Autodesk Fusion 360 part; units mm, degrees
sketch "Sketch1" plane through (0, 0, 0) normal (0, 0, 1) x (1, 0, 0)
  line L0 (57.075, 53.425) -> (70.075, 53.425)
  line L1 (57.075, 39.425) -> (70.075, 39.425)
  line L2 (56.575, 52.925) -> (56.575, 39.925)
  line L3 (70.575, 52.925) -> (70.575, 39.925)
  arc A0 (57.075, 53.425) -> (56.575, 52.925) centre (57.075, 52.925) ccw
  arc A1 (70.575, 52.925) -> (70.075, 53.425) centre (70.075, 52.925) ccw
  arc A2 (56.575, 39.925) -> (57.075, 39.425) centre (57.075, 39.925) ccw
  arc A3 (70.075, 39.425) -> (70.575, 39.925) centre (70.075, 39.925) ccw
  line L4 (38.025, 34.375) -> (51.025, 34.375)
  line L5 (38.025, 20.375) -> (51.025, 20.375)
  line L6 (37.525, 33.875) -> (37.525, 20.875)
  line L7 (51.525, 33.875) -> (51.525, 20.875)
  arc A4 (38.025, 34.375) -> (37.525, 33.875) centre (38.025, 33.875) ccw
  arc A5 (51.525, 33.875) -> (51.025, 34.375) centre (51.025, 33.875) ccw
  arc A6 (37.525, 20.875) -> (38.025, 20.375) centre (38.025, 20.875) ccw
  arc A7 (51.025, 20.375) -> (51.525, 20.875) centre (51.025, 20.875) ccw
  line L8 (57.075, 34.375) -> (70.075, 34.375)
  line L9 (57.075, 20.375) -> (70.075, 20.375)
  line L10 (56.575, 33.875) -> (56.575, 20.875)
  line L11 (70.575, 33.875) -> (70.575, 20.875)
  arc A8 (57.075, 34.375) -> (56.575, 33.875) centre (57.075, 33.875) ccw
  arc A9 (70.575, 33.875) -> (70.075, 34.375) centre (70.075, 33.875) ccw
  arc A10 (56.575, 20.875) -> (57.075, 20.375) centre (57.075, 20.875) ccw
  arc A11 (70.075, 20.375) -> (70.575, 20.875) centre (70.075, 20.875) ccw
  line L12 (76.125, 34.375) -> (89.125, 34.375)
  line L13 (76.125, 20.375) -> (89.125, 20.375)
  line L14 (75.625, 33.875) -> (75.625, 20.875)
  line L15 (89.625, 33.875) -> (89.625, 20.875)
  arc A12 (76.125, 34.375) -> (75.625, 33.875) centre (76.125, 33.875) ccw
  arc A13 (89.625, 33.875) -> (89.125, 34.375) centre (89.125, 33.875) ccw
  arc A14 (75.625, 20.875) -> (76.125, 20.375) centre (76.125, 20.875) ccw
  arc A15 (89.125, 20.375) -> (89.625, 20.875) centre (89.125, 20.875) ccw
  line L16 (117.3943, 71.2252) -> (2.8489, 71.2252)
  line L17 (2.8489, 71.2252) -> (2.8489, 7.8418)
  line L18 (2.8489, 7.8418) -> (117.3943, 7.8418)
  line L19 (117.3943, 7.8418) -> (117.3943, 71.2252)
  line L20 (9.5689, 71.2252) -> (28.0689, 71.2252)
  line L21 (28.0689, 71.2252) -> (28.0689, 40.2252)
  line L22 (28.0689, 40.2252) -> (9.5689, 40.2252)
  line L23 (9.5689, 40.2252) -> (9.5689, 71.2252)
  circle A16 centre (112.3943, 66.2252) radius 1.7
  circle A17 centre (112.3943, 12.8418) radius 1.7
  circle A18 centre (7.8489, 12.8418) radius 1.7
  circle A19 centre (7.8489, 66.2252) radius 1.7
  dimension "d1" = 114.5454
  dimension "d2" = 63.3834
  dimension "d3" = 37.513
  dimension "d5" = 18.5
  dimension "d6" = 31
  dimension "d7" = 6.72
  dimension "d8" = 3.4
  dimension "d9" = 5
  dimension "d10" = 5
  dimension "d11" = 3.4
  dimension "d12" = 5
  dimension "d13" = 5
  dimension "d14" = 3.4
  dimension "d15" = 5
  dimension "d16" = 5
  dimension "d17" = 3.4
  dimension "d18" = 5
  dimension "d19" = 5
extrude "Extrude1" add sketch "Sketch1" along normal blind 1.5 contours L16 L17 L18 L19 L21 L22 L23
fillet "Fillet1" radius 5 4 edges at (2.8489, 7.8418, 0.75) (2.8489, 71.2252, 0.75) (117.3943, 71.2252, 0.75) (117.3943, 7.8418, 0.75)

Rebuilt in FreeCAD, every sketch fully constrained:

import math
import FreeCAD as App
import Part
import Sketcher

V = App.Vector


def edges_at(feature, points):
    """Names of the edges that pass closest to the given points."""
    edges = feature.Shape.Edges
    near = lambda p: min(range(len(edges)), key=lambda i: edges[i].distToShape(Part.Vertex(*p))[0])
    return sorted({f"Edge{near(p) + 1}" for p in points})


def add_polygon(sketch, points):
    """Adds a closed chain of lines whose ends are joined by coincident constraints."""
    first, n = sketch.GeometryCount, len(points)
    for a, b in zip(points, points[1:] + points[:1]):
        sketch.addGeometry(Part.LineSegment(App.Vector(*a, 0), App.Vector(*b, 0)), False)
    for i in range(n):
        sketch.addConstraint(Sketcher.Constraint("Coincident", first + i, 2, first + (i + 1) % n, 1))

doc = App.newDocument("Part")
body = doc.addObject("PartDesign::Body", "Body")

# Sketch on XY plane
sketch1 = body.newObject("Sketcher::SketchObject", "Sketch")
sketch1.AttachmentSupport = (doc.getObject("XY_Plane"), [""])
sketch1.MapMode = "FlatFace"
add_polygon(sketch1, [(117.4, 7.8), (117.4, 71.2), (28.1, 71.2), (28.1, 40.2), (9.6, 40.2), (9.6, 71.2), (2.8, 71.2), (2.8, 7.8)])  # lines 0-7
sketch1.addGeometry(Part.Circle(V(7.8, 12.8, 0), V(0, 0, 1), 1.7), False)  # 8
sketch1.addGeometry(Part.ArcOfCircle(Part.Circle(V(38, 33.9, 0), V(0, 0, 1), 0.5), math.radians(90), math.radians(180)), False)  # 9
sketch1.addGeometry(Part.LineSegment(V(38, 34.4, 0), V(51, 34.4, 0)), False)  # 10
sketch1.addGeometry(Part.ArcOfCircle(Part.Circle(V(51, 33.9, 0), V(0, 0, 1), 0.5), math.radians(0), math.radians(90)), False)  # 11
sketch1.addGeometry(Part.LineSegment(V(51.5, 33.9, 0), V(51.5, 20.9, 0)), False)  # 12
sketch1.addGeometry(Part.ArcOfCircle(Part.Circle(V(51, 20.9, 0), V(0, 0, 1), 0.5), math.radians(-90), math.radians(0)), False)  # 13
sketch1.addGeometry(Part.LineSegment(V(51, 20.4, 0), V(38, 20.4, 0)), False)  # 14
sketch1.addGeometry(Part.ArcOfCircle(Part.Circle(V(38, 20.9, 0), V(0, 0, 1), 0.5), math.radians(180), math.radians(270)), False)  # 15
sketch1.addGeometry(Part.LineSegment(V(37.5, 20.9, 0), V(37.5, 33.9, 0)), False)  # 16
sketch1.addGeometry(Part.Circle(V(112.4, 12.8, 0), V(0, 0, 1), 1.7), False)  # 17
sketch1.addGeometry(Part.ArcOfCircle(Part.Circle(V(57.1, 33.9, 0), V(0, 0, 1), 0.5), math.radians(90), math.radians(180)), False)  # 18
sketch1.addGeometry(Part.LineSegment(V(57.1, 34.4, 0), V(70.1, 34.4, 0)), False)  # 19
sketch1.addGeometry(Part.ArcOfCircle(Part.Circle(V(70.1, 33.9, 0), V(0, 0, 1), 0.5), math.radians(0), math.radians(90)), False)  # 20
sketch1.addGeometry(Part.LineSegment(V(70.6, 33.9, 0), V(70.6, 20.9, 0)), False)  # 21
sketch1.addGeometry(Part.ArcOfCircle(Part.Circle(V(70.1, 20.9, 0), V(0, 0, 1), 0.5), math.radians(-90), math.radians(0)), False)  # 22
sketch1.addGeometry(Part.LineSegment(V(70.1, 20.4, 0), V(57.1, 20.4, 0)), False)  # 23
sketch1.addGeometry(Part.ArcOfCircle(Part.Circle(V(57.1, 20.9, 0), V(0, 0, 1), 0.5), math.radians(180), math.radians(270)), False)  # 24
sketch1.addGeometry(Part.LineSegment(V(56.6, 20.9, 0), V(56.6, 33.9, 0)), False)  # 25
sketch1.addGeometry(Part.ArcOfCircle(Part.Circle(V(76.1, 33.9, 0), V(0, 0, 1), 0.5), math.radians(90), math.radians(180)), False)  # 26
sketch1.addGeometry(Part.LineSegment(V(76.1, 34.4, 0), V(89.1, 34.4, 0)), False)  # 27
sketch1.addGeometry(Part.ArcOfCircle(Part.Circle(V(89.1, 33.9, 0), V(0, 0, 1), 0.5), math.radians(0), math.radians(90)), False)  # 28
sketch1.addGeometry(Part.LineSegment(V(89.6, 33.9, 0), V(89.6, 20.9, 0)), False)  # 29
sketch1.addGeometry(Part.ArcOfCircle(Part.Circle(V(89.1, 20.9, 0), V(0, 0, 1), 0.5), math.radians(-90), math.radians(0)), False)  # 30
sketch1.addGeometry(Part.LineSegment(V(89.1, 20.4, 0), V(76.1, 20.4, 0)), False)  # 31
sketch1.addGeometry(Part.ArcOfCircle(Part.Circle(V(76.1, 20.9, 0), V(0, 0, 1), 0.5), math.radians(180), math.radians(270)), False)  # 32
sketch1.addGeometry(Part.LineSegment(V(75.6, 20.9, 0), V(75.6, 33.9, 0)), False)  # 33
sketch1.addGeometry(Part.Circle(V(7.8, 66.2, 0), V(0, 0, 1), 1.7), False)  # 34
sketch1.addGeometry(Part.ArcOfCircle(Part.Circle(V(57.1, 52.9, 0), V(0, 0, 1), 0.5), math.radians(90), math.radians(180)), False)  # 35
sketch1.addGeometry(Part.LineSegment(V(57.1, 53.4, 0), V(70.1, 53.4, 0)), False)  # 36
sketch1.addGeometry(Part.ArcOfCircle(Part.Circle(V(70.1, 52.9, 0), V(0, 0, 1), 0.5), math.radians(0), math.radians(90)), False)  # 37
sketch1.addGeometry(Part.LineSegment(V(70.6, 52.9, 0), V(70.6, 39.9, 0)), False)  # 38
sketch1.addGeometry(Part.ArcOfCircle(Part.Circle(V(70.1, 39.9, 0), V(0, 0, 1), 0.5), math.radians(-90), math.radians(0)), False)  # 39
sketch1.addGeometry(Part.LineSegment(V(70.1, 39.4, 0), V(57.1, 39.4, 0)), False)  # 40
sketch1.addGeometry(Part.ArcOfCircle(Part.Circle(V(57.1, 39.9, 0), V(0, 0, 1), 0.5), math.radians(180), math.radians(270)), False)  # 41
sketch1.addGeometry(Part.LineSegment(V(56.6, 39.9, 0), V(56.6, 52.9, 0)), False)  # 42
sketch1.addGeometry(Part.Circle(V(112.4, 66.2, 0), V(0, 0, 1), 1.7), False)  # 43
sketch1.addConstraint(Sketcher.Constraint("Tangent", 9, 1, 10, 1))
sketch1.addConstraint(Sketcher.Constraint("Tangent", 10, 2, 11, 2))
sketch1.addConstraint(Sketcher.Constraint("Tangent", 11, 1, 12, 1))
sketch1.addConstraint(Sketcher.Constraint("Tangent", 12, 2, 13, 2))
sketch1.addConstraint(Sketcher.Constraint("Tangent", 13, 1, 14, 1))
sketch1.addConstraint(Sketcher.Constraint("Tangent", 14, 2, 15, 2))
sketch1.addConstraint(Sketcher.Constraint("Tangent", 15, 1, 16, 1))
sketch1.addConstraint(Sketcher.Constraint("Tangent", 16, 2, 9, 2))
sketch1.addConstraint(Sketcher.Constraint("Tangent", 18, 1, 19, 1))
sketch1.addConstraint(Sketcher.Constraint("Tangent", 19, 2, 20, 2))
sketch1.addConstraint(Sketcher.Constraint("Tangent", 20, 1, 21, 1))
sketch1.addConstraint(Sketcher.Constraint("Tangent", 21, 2, 22, 2))
sketch1.addConstraint(Sketcher.Constraint("Tangent", 22, 1, 23, 1))
sketch1.addConstraint(Sketcher.Constraint("Tangent", 23, 2, 24, 2))
sketch1.addConstraint(Sketcher.Constraint("Tangent", 24, 1, 25, 1))
sketch1.addConstraint(Sketcher.Constraint("Tangent", 25, 2, 18, 2))
sketch1.addConstraint(Sketcher.Constraint("Tangent", 26, 1, 27, 1))
sketch1.addConstraint(Sketcher.Constraint("Tangent", 27, 2, 28, 2))
sketch1.addConstraint(Sketcher.Constraint("Tangent", 28, 1, 29, 1))
sketch1.addConstraint(Sketcher.Constraint("Tangent", 29, 2, 30, 2))
sketch1.addConstraint(Sketcher.Constraint("Tangent", 30, 1, 31, 1))
sketch1.addConstraint(Sketcher.Constraint("Tangent", 31, 2, 32, 2))
sketch1.addConstraint(Sketcher.Constraint("Tangent", 32, 1, 33, 1))
sketch1.addConstraint(Sketcher.Constraint("Tangent", 33, 2, 26, 2))
sketch1.addConstraint(Sketcher.Constraint("Tangent", 35, 1, 36, 1))
sketch1.addConstraint(Sketcher.Constraint("Tangent", 36, 2, 37, 2))
sketch1.addConstraint(Sketcher.Constraint("Tangent", 37, 1, 38, 1))
sketch1.addConstraint(Sketcher.Constraint("Tangent", 38, 2, 39, 2))
sketch1.addConstraint(Sketcher.Constraint("Tangent", 39, 1, 40, 1))
sketch1.addConstraint(Sketcher.Constraint("Tangent", 40, 2, 41, 2))
sketch1.addConstraint(Sketcher.Constraint("Tangent", 41, 1, 42, 1))
sketch1.addConstraint(Sketcher.Constraint("Tangent", 42, 2, 35, 2))
sketch1.addConstraint(Sketcher.Constraint("Vertical", 0))
sketch1.addConstraint(Sketcher.Constraint("Horizontal", 1))
sketch1.addConstraint(Sketcher.Constraint("Vertical", 2))
sketch1.addConstraint(Sketcher.Constraint("Horizontal", 3))
sketch1.addConstraint(Sketcher.Constraint("Vertical", 4))
sketch1.addConstraint(Sketcher.Constraint("Horizontal", 5))
sketch1.addConstraint(Sketcher.Constraint("Vertical", 6))
sketch1.addConstraint(Sketcher.Constraint("Horizontal", 7))
sketch1.addConstraint(Sketcher.Constraint("Horizontal", 10))
sketch1.addConstraint(Sketcher.Constraint("Vertical", 12))
sketch1.addConstraint(Sketcher.Constraint("Horizontal", 14))
sketch1.addConstraint(Sketcher.Constraint("Vertical", 16))
sketch1.addConstraint(Sketcher.Constraint("Horizontal", 19))
sketch1.addConstraint(Sketcher.Constraint("Vertical", 21))
sketch1.addConstraint(Sketcher.Constraint("Horizontal", 23))
sketch1.addConstraint(Sketcher.Constraint("Vertical", 25))
sketch1.addConstraint(Sketcher.Constraint("Horizontal", 27))
sketch1.addConstraint(Sketcher.Constraint("Vertical", 29))
sketch1.addConstraint(Sketcher.Constraint("Horizontal", 31))
sketch1.addConstraint(Sketcher.Constraint("Vertical", 33))
sketch1.addConstraint(Sketcher.Constraint("Horizontal", 36))
sketch1.addConstraint(Sketcher.Constraint("Vertical", 38))
sketch1.addConstraint(Sketcher.Constraint("Horizontal", 40))
sketch1.addConstraint(Sketcher.Constraint("Vertical", 42))
sketch1.addConstraint(Sketcher.Constraint("Equal", 9, 11))
sketch1.addConstraint(Sketcher.Constraint("Equal", 11, 13))
sketch1.addConstraint(Sketcher.Constraint("Equal", 13, 15))
sketch1.addConstraint(Sketcher.Constraint("Equal", 8, 17))
sketch1.addConstraint(Sketcher.Constraint("Equal", 15, 18))
sketch1.addConstraint(Sketcher.Constraint("Equal", 18, 20))
sketch1.addConstraint(Sketcher.Constraint("Equal", 20, 22))
sketch1.addConstraint(Sketcher.Constraint("Equal", 22, 24))
sketch1.addConstraint(Sketcher.Constraint("Equal", 24, 26))
sketch1.addConstraint(Sketcher.Constraint("Equal", 26, 28))
sketch1.addConstraint(Sketcher.Constraint("Equal", 28, 30))
sketch1.addConstraint(Sketcher.Constraint("Equal", 30, 32))
sketch1.addConstraint(Sketcher.Constraint("Equal", 17, 34))
sketch1.addConstraint(Sketcher.Constraint("Equal", 32, 35))
sketch1.addConstraint(Sketcher.Constraint("Equal", 35, 37))
sketch1.addConstraint(Sketcher.Constraint("Equal", 37, 39))
sketch1.addConstraint(Sketcher.Constraint("Equal", 39, 41))
sketch1.addConstraint(Sketcher.Constraint("Equal", 34, 43))
sketch1.addConstraint(Sketcher.Constraint("Horizontal", 8, 3, 17, 3))
sketch1.addConstraint(Sketcher.Constraint("Horizontal", 11, 3, 18, 3))
sketch1.addConstraint(Sketcher.Constraint("Horizontal", 15, 3, 22, 3))
sketch1.addConstraint(Sketcher.Constraint("Horizontal", 20, 3, 26, 3))
sketch1.addConstraint(Sketcher.Constraint("Horizontal", 24, 3, 30, 3))
sketch1.addConstraint(Sketcher.Constraint("Horizontal", 34, 3, 43, 3))
sketch1.addConstraint(Sketcher.Constraint("Horizontal", 1, 2, 4, 2))
sketch1.addConstraint(Sketcher.Constraint("Vertical", 8, 3, 34, 3))
sketch1.addConstraint(Sketcher.Constraint("Vertical", 24, 3, 35, 3))
sketch1.addConstraint(Sketcher.Constraint("Vertical", 22, 3, 37, 3))
sketch1.addConstraint(Sketcher.Constraint("Vertical", 17, 3, 43, 3))
sketch1.addConstraint(Sketcher.Constraint("Equal", 14, 19))
sketch1.addConstraint(Sketcher.Constraint("Equal", 23, 27))
sketch1.addConstraint(Sketcher.Constraint("Equal", 40, 12))
sketch1.addConstraint(Sketcher.Constraint("Equal", 33, 38))
sketch1.addConstraint(Sketcher.Constraint("Diameter", 8, 3.4))
sketch1.addConstraint(Sketcher.Constraint("DistanceY", 2, 2, 2, 1, 31.0))
sketch1.addConstraint(Sketcher.Constraint("DistanceX", 3, 2, 3, 1, 18.5))
sketch1.addConstraint(Sketcher.Constraint("DistanceX", 43, 3, 0, 2, 5.0))
sketch1.addConstraint(Sketcher.Constraint("DistanceY", 43, 3, 0, 2, 5.0))
sketch1.addConstraint(Sketcher.Constraint("DistanceX", 5, 2, 34, 3, 5.0))
sketch1.addConstraint(Sketcher.Constraint("DistanceY", 6, 2, 8, 3, 5.0))
sketch1.addConstraint(Sketcher.Constraint("DistanceX", 5, 2, 5, 1, 6.72))
sketch1.addConstraint(Sketcher.Constraint("Radius", 9, 0.5))
sketch1.addConstraint(Sketcher.Constraint("DistanceX", 10, 1, 10, 2, 13.0))
sketch1.addConstraint(Sketcher.Constraint("DistanceX", 7, 1, 7, 2, 114.5454))
sketch1.addConstraint(Sketcher.Constraint("DistanceY", 0, 1, 0, 2, 63.3834))
sketch1.addConstraint(Sketcher.Constraint("DistanceX", 11, 3, 26, 3, 25.1))
sketch1.addConstraint(Sketcher.Constraint("DistanceX", 11, 3, 18, 3, 6.05))
sketch1.addConstraint(Sketcher.Constraint("DistanceY", 18, 3, 35, 3, 19.05))
sketch1.addConstraint(Sketcher.Constraint("DistanceX", -1, 1, 8, 3, 7.849))
sketch1.addConstraint(Sketcher.Constraint("DistanceX", -1, 1, 9, 3, 38.025))
sketch1.addConstraint(Sketcher.Constraint("DistanceY", -1, 1, 9, 3, 33.875))
sketch1.addConstraint(Sketcher.Constraint("DistanceY", -1, 1, 8, 3, 12.8418))
pad1 = body.newObject("PartDesign::Pad", "Pad")
pad1.Profile = sketch1
pad1.Length = 1.5
doc.recompute()

fillet = body.newObject("PartDesign::Fillet", "Fillet")
fillet.Base = (pad1, edges_at(pad1, [
    (2.849, 7.842, 0.75),
    (2.849, 71.225, 0.75),
    (117.394, 71.225, 0.75),
    (117.394, 7.842, 0.75),
]))
fillet.Radius = 5

doc.recompute()
